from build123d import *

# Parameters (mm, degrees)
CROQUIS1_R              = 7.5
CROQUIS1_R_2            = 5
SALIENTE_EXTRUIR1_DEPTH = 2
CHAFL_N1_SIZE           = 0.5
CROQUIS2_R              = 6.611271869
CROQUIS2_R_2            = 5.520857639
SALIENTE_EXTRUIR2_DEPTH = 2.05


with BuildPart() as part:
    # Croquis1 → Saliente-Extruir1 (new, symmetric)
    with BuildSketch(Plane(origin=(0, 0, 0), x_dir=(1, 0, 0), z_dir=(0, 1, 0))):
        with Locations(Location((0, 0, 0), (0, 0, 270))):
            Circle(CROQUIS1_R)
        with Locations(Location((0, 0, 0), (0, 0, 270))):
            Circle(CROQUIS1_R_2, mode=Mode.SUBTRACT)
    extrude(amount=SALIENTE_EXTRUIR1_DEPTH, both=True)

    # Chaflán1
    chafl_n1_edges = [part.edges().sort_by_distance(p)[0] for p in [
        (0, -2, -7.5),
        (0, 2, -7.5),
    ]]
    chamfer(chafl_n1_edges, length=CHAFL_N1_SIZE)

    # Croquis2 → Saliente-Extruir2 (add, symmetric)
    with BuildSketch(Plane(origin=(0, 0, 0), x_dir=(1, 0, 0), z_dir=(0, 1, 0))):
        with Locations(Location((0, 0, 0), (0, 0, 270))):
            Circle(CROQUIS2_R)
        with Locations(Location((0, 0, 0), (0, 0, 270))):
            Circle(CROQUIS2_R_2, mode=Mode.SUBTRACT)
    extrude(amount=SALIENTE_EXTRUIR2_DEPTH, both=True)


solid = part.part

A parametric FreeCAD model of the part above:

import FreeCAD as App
import Part
import Sketcher
from FreeCAD import Vector


def edges_at(feature, points):
    """Names of the edges that pass closest to the given points."""
    edges = feature.Shape.Edges
    near = lambda p: min(range(len(edges)), key=lambda i: edges[i].distToShape(Part.Vertex(*p))[0])
    return sorted({f"Edge{near(p) + 1}" for p in points})

doc = App.newDocument("Part")
body = doc.addObject("PartDesign::Body", "Body")

# Sketch on XZ plane
sketch1 = body.newObject("Sketcher::SketchObject", "Sketch")
sketch1.AttachmentSupport = (doc.getObject("XZ_Plane"), [""])
sketch1.MapMode = "FlatFace"
sketch1.addGeometry([
    Part.Circle(Vector(0, 0, 0), Vector(0, 0, 1), 8),
    Part.Circle(Vector(0, 0, 0), Vector(0, 0, 1), 5),
], False)
sketch1.addConstraint([
    Sketcher.Constraint("Coincident", 0, 3, -1, 1),
    Sketcher.Constraint("Coincident", 1, 3, -1, 1),
    Sketcher.Constraint("Diameter", 0, 15.0),
    Sketcher.Constraint("Diameter", 1, 10.0),
])
pad1 = body.newObject("PartDesign::Pad", "Pad")
pad1.Profile = sketch1
pad1.Length = 4
pad1.Midplane = True
doc.recompute()

chamfer = body.newObject("PartDesign::Chamfer", "Chamfer")
chamfer.Base = (pad1, edges_at(pad1, [(0, -2, -7.5), (0, 2, -7.5)]))
chamfer.Size = 0.5

# Sketch on XZ plane
sketch2 = body.newObject("Sketcher::SketchObject", "Sketch001")
sketch2.AttachmentSupport = (doc.getObject("XZ_Plane"), [""])
sketch2.MapMode = "FlatFace"
sketch2.addGeometry([
    Part.Circle(Vector(0, 0, 0), Vector(0, 0, 1), 7),
    Part.Circle(Vector(0, 0, 0), Vector(0, 0, 1), 6),
], False)
sketch2.addConstraint([
    Sketcher.Constraint("Coincident", 0, 3, -1, 1),
    Sketcher.Constraint("Coincident", 1, 3, -1, 1),
    Sketcher.Constraint("Diameter", 0, 13.222544),
    Sketcher.Constraint("Diameter", 1, 11.041715),
])
pad2 = body.newObject("PartDesign::Pad", "Pad001")
pad2.Profile = sketch2
pad2.Length = 4.1
pad2.Midplane = True

doc.recompute()
